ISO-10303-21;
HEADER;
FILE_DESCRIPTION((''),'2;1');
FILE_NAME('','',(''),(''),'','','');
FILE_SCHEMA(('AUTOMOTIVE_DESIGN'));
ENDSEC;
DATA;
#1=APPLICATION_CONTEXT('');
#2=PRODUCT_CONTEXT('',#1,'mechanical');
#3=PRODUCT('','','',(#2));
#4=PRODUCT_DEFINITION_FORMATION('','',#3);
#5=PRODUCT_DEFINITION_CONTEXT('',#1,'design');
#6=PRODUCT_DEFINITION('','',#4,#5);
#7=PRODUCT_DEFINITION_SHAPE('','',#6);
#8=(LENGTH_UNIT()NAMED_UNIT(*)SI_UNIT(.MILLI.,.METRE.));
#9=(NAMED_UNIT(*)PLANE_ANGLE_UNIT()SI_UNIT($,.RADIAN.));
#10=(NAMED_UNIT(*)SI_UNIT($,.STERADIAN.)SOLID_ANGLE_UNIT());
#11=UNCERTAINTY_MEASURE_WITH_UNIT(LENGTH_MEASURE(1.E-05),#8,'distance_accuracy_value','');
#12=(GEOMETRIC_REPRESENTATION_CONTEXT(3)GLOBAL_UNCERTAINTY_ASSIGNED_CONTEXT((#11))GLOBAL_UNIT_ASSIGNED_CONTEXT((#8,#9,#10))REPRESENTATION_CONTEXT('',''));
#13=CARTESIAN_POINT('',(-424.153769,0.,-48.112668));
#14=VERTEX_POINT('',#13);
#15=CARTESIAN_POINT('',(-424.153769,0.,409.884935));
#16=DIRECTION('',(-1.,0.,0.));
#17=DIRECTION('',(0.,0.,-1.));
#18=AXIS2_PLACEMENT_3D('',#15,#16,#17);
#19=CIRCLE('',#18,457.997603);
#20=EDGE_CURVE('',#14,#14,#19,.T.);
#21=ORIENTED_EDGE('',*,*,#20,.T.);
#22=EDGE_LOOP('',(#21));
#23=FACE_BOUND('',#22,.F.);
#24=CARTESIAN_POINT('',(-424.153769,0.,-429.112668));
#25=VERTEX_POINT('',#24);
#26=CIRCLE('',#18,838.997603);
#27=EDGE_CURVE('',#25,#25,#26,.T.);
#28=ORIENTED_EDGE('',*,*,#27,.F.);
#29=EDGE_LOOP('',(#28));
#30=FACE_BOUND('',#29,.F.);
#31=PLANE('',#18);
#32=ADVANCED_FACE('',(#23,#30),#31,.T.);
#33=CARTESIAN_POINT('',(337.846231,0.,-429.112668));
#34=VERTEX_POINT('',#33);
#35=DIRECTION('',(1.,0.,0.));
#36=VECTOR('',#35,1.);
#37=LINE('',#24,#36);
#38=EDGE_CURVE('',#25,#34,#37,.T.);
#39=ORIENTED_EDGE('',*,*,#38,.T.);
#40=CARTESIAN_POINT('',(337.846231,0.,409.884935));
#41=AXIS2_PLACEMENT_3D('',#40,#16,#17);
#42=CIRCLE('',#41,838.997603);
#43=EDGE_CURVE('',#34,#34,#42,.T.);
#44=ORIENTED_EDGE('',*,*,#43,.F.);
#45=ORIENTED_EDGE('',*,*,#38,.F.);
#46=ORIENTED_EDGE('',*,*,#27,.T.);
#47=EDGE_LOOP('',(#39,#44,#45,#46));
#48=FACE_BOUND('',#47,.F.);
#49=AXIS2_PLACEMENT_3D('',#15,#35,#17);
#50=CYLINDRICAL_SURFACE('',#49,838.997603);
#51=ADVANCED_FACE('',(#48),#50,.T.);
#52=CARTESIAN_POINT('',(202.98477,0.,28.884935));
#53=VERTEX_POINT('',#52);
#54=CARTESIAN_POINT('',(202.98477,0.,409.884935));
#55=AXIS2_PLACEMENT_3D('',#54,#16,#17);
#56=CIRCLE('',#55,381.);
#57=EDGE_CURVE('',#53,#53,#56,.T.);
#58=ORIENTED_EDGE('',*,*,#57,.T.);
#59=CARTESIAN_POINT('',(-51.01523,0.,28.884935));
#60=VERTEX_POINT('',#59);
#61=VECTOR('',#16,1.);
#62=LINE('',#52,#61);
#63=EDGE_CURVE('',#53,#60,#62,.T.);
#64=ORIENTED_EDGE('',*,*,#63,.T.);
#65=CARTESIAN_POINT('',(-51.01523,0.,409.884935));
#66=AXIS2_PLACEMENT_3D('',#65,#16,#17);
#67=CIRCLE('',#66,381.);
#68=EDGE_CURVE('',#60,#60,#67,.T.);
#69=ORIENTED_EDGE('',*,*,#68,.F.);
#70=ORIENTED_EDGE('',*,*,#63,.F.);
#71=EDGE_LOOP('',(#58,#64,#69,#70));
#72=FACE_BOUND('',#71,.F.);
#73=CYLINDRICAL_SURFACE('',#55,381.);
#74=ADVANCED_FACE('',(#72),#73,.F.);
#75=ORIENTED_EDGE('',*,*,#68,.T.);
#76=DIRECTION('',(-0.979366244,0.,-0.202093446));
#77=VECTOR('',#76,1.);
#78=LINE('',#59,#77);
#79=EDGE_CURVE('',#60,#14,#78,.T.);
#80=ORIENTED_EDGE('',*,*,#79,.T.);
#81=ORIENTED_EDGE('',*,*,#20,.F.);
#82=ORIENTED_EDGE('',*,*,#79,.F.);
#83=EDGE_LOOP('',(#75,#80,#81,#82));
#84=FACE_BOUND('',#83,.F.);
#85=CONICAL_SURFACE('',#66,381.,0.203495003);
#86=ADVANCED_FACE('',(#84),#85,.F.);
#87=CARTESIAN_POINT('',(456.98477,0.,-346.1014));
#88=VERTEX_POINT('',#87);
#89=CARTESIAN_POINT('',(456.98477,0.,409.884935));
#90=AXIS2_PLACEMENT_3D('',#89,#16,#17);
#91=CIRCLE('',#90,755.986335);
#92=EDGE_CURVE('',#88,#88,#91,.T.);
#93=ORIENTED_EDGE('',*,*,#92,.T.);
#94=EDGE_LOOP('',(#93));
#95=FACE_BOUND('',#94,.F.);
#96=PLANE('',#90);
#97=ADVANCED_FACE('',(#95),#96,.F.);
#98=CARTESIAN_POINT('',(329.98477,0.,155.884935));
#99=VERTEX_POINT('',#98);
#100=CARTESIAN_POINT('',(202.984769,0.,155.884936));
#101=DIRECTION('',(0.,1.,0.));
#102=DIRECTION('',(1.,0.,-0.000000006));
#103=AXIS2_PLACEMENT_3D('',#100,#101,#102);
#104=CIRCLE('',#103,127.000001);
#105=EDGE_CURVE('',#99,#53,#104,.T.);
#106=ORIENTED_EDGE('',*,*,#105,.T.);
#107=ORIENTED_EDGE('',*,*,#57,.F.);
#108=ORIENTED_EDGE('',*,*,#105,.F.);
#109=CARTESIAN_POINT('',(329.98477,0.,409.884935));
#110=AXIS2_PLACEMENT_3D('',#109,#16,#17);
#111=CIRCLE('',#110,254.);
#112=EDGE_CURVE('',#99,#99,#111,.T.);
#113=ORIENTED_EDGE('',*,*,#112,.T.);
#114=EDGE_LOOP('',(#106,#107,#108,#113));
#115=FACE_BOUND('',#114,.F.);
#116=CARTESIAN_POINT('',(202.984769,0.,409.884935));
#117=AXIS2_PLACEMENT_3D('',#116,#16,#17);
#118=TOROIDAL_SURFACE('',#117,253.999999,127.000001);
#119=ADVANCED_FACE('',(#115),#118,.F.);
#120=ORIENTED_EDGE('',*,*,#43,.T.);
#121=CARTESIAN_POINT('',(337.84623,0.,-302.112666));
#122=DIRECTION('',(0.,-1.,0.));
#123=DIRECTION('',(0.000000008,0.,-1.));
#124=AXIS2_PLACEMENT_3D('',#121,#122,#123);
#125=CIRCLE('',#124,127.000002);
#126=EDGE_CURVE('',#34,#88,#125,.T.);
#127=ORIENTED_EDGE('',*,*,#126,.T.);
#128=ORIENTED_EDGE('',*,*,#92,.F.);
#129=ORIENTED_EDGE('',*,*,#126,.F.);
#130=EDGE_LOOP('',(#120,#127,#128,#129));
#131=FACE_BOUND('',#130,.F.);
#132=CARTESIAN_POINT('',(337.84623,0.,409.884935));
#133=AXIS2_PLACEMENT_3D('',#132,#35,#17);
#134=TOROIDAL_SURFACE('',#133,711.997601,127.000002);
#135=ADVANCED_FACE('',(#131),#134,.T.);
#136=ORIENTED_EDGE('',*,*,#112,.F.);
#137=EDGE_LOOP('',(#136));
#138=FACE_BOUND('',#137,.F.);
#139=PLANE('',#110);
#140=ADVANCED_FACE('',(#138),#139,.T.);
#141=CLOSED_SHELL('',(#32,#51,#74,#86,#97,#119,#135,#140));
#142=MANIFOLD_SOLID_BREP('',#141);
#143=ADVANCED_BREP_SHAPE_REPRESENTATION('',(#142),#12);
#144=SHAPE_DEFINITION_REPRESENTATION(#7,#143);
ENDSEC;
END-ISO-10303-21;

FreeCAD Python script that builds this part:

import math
import FreeCAD as App
import Part
import Sketcher

V = App.Vector
Q = App.Units.Quantity

doc = App.newDocument("Part")
body = doc.addObject("PartDesign::Body", "Body")

sketch1 = body.newObject("Sketcher::SketchObject", "Sketch")
sketch1.AttachmentSupport = (doc.getObject("XZ_Plane"), [""])
sketch1.MapMode = "FlatFace"
sketch1.addGeometry(Part.LineSegment(V(-51, 29, 0), V(-424, -48, 0)), False)
sketch1.addGeometry(Part.LineSegment(V(-424, -48, 0), V(-424, -429, 0)), False)
sketch1.addGeometry(Part.LineSegment(V(-424, -429, 0), V(338, -429, 0)), False)
sketch1.addGeometry(Part.ArcOfCircle(Part.Circle(V(338, -302, 0), V(0, 0, 1), 127), math.radians(-90), math.radians(-20)), False)
sketch1.addGeometry(Part.LineSegment(V(457, -346, 0), V(457, 410, 0)), False)
sketch1.addGeometry(Part.LineSegment(V(457, 410, 0), V(330, 410, 0)), False)
sketch1.addGeometry(Part.LineSegment(V(330, 410, 0), V(330, 156, 0)), False)
sketch1.addGeometry(Part.ArcOfCircle(Part.Circle(V(203, 156, 0), V(0, 0, 1), 127), math.radians(-90), math.radians(0)), False)
sketch1.addGeometry(Part.LineSegment(V(203, 29, 0), V(-51, 29, 0)), False)
sketch1.addGeometry(Part.LineSegment(V(457, 410, 0), V(-424, 410, 0)), True)
sketch1.addConstraint(Sketcher.Constraint("Coincident", 0, 2, 1, 1))
sketch1.addConstraint(Sketcher.Constraint("Coincident", 1, 2, 2, 1))
sketch1.addConstraint(Sketcher.Constraint("Tangent", 2, 2, 3, 1))
sketch1.addConstraint(Sketcher.Constraint("Coincident", 3, 2, 4, 1))
sketch1.addConstraint(Sketcher.Constraint("Coincident", 4, 2, 5, 1))
sketch1.addConstraint(Sketcher.Constraint("Coincident", 5, 2, 6, 1))
sketch1.addConstraint(Sketcher.Constraint("Tangent", 6, 2, 7, 2))
sketch1.addConstraint(Sketcher.Constraint("Tangent", 7, 1, 8, 1))
sketch1.addConstraint(Sketcher.Constraint("Coincident", 8, 2, 0, 1))
sketch1.addConstraint(Sketcher.Constraint("Vertical", 1))
sketch1.addConstraint(Sketcher.Constraint("Horizontal", 2))
sketch1.addConstraint(Sketcher.Constraint("Vertical", 4))
sketch1.addConstraint(Sketcher.Constraint("Horizontal", 5))
sketch1.addConstraint(Sketcher.Constraint("Vertical", 6))
sketch1.addConstraint(Sketcher.Constraint("Horizontal", 8))
sketch1.addConstraint(Sketcher.Constraint("Horizontal", 9))
sketch1.addConstraint(Sketcher.Constraint("Coincident", 9, 1, 4, 2))
sketch1.addConstraint(Sketcher.Constraint("Equal", 3, 7))
sketch1.addConstraint(Sketcher.Constraint("Vertical", 1, 2, 9, 2))
sketch1.addConstraint(Sketcher.Constraint("Equal", 8, 6))
sketch1.addConstraint(Sketcher.Constraint("Radius", 3, Q("5.0000001 in")))
sketch1.addConstraint(Sketcher.Constraint("DistanceX", 2, 1, 2, 2, Q("30 in")))
sketch1.addConstraint(Sketcher.Constraint("DistanceX", 5, 2, 5, 1, Q("5 in")))
sketch1.addConstraint(Sketcher.Constraint("DistanceX", 8, 2, 8, 1, Q("10 in")))
sketch1.addConstraint(Sketcher.Constraint("DistanceY", 1, 2, 1, 1, Q("15 in")))
sketch1.addConstraint(Sketcher.Constraint("Distance", 0, Q("15 in")))
sketch1.addConstraint(Sketcher.Constraint("DistanceX", 9, 2, 9, 1, 881.138539))
sketch1.addConstraint(Sketcher.Constraint("DistanceX", -1, 1, 3, 3, 337.84623))
sketch1.addConstraint(Sketcher.Constraint("DistanceY", 1, 2, -1, 1, 429.112668))
revolution = body.newObject("PartDesign::Revolution", "Revolution")
revolution.Profile = sketch1
revolution.ReferenceAxis = (sketch1, ["Axis0"])
revolution.Angle = 360

doc.recompute()
